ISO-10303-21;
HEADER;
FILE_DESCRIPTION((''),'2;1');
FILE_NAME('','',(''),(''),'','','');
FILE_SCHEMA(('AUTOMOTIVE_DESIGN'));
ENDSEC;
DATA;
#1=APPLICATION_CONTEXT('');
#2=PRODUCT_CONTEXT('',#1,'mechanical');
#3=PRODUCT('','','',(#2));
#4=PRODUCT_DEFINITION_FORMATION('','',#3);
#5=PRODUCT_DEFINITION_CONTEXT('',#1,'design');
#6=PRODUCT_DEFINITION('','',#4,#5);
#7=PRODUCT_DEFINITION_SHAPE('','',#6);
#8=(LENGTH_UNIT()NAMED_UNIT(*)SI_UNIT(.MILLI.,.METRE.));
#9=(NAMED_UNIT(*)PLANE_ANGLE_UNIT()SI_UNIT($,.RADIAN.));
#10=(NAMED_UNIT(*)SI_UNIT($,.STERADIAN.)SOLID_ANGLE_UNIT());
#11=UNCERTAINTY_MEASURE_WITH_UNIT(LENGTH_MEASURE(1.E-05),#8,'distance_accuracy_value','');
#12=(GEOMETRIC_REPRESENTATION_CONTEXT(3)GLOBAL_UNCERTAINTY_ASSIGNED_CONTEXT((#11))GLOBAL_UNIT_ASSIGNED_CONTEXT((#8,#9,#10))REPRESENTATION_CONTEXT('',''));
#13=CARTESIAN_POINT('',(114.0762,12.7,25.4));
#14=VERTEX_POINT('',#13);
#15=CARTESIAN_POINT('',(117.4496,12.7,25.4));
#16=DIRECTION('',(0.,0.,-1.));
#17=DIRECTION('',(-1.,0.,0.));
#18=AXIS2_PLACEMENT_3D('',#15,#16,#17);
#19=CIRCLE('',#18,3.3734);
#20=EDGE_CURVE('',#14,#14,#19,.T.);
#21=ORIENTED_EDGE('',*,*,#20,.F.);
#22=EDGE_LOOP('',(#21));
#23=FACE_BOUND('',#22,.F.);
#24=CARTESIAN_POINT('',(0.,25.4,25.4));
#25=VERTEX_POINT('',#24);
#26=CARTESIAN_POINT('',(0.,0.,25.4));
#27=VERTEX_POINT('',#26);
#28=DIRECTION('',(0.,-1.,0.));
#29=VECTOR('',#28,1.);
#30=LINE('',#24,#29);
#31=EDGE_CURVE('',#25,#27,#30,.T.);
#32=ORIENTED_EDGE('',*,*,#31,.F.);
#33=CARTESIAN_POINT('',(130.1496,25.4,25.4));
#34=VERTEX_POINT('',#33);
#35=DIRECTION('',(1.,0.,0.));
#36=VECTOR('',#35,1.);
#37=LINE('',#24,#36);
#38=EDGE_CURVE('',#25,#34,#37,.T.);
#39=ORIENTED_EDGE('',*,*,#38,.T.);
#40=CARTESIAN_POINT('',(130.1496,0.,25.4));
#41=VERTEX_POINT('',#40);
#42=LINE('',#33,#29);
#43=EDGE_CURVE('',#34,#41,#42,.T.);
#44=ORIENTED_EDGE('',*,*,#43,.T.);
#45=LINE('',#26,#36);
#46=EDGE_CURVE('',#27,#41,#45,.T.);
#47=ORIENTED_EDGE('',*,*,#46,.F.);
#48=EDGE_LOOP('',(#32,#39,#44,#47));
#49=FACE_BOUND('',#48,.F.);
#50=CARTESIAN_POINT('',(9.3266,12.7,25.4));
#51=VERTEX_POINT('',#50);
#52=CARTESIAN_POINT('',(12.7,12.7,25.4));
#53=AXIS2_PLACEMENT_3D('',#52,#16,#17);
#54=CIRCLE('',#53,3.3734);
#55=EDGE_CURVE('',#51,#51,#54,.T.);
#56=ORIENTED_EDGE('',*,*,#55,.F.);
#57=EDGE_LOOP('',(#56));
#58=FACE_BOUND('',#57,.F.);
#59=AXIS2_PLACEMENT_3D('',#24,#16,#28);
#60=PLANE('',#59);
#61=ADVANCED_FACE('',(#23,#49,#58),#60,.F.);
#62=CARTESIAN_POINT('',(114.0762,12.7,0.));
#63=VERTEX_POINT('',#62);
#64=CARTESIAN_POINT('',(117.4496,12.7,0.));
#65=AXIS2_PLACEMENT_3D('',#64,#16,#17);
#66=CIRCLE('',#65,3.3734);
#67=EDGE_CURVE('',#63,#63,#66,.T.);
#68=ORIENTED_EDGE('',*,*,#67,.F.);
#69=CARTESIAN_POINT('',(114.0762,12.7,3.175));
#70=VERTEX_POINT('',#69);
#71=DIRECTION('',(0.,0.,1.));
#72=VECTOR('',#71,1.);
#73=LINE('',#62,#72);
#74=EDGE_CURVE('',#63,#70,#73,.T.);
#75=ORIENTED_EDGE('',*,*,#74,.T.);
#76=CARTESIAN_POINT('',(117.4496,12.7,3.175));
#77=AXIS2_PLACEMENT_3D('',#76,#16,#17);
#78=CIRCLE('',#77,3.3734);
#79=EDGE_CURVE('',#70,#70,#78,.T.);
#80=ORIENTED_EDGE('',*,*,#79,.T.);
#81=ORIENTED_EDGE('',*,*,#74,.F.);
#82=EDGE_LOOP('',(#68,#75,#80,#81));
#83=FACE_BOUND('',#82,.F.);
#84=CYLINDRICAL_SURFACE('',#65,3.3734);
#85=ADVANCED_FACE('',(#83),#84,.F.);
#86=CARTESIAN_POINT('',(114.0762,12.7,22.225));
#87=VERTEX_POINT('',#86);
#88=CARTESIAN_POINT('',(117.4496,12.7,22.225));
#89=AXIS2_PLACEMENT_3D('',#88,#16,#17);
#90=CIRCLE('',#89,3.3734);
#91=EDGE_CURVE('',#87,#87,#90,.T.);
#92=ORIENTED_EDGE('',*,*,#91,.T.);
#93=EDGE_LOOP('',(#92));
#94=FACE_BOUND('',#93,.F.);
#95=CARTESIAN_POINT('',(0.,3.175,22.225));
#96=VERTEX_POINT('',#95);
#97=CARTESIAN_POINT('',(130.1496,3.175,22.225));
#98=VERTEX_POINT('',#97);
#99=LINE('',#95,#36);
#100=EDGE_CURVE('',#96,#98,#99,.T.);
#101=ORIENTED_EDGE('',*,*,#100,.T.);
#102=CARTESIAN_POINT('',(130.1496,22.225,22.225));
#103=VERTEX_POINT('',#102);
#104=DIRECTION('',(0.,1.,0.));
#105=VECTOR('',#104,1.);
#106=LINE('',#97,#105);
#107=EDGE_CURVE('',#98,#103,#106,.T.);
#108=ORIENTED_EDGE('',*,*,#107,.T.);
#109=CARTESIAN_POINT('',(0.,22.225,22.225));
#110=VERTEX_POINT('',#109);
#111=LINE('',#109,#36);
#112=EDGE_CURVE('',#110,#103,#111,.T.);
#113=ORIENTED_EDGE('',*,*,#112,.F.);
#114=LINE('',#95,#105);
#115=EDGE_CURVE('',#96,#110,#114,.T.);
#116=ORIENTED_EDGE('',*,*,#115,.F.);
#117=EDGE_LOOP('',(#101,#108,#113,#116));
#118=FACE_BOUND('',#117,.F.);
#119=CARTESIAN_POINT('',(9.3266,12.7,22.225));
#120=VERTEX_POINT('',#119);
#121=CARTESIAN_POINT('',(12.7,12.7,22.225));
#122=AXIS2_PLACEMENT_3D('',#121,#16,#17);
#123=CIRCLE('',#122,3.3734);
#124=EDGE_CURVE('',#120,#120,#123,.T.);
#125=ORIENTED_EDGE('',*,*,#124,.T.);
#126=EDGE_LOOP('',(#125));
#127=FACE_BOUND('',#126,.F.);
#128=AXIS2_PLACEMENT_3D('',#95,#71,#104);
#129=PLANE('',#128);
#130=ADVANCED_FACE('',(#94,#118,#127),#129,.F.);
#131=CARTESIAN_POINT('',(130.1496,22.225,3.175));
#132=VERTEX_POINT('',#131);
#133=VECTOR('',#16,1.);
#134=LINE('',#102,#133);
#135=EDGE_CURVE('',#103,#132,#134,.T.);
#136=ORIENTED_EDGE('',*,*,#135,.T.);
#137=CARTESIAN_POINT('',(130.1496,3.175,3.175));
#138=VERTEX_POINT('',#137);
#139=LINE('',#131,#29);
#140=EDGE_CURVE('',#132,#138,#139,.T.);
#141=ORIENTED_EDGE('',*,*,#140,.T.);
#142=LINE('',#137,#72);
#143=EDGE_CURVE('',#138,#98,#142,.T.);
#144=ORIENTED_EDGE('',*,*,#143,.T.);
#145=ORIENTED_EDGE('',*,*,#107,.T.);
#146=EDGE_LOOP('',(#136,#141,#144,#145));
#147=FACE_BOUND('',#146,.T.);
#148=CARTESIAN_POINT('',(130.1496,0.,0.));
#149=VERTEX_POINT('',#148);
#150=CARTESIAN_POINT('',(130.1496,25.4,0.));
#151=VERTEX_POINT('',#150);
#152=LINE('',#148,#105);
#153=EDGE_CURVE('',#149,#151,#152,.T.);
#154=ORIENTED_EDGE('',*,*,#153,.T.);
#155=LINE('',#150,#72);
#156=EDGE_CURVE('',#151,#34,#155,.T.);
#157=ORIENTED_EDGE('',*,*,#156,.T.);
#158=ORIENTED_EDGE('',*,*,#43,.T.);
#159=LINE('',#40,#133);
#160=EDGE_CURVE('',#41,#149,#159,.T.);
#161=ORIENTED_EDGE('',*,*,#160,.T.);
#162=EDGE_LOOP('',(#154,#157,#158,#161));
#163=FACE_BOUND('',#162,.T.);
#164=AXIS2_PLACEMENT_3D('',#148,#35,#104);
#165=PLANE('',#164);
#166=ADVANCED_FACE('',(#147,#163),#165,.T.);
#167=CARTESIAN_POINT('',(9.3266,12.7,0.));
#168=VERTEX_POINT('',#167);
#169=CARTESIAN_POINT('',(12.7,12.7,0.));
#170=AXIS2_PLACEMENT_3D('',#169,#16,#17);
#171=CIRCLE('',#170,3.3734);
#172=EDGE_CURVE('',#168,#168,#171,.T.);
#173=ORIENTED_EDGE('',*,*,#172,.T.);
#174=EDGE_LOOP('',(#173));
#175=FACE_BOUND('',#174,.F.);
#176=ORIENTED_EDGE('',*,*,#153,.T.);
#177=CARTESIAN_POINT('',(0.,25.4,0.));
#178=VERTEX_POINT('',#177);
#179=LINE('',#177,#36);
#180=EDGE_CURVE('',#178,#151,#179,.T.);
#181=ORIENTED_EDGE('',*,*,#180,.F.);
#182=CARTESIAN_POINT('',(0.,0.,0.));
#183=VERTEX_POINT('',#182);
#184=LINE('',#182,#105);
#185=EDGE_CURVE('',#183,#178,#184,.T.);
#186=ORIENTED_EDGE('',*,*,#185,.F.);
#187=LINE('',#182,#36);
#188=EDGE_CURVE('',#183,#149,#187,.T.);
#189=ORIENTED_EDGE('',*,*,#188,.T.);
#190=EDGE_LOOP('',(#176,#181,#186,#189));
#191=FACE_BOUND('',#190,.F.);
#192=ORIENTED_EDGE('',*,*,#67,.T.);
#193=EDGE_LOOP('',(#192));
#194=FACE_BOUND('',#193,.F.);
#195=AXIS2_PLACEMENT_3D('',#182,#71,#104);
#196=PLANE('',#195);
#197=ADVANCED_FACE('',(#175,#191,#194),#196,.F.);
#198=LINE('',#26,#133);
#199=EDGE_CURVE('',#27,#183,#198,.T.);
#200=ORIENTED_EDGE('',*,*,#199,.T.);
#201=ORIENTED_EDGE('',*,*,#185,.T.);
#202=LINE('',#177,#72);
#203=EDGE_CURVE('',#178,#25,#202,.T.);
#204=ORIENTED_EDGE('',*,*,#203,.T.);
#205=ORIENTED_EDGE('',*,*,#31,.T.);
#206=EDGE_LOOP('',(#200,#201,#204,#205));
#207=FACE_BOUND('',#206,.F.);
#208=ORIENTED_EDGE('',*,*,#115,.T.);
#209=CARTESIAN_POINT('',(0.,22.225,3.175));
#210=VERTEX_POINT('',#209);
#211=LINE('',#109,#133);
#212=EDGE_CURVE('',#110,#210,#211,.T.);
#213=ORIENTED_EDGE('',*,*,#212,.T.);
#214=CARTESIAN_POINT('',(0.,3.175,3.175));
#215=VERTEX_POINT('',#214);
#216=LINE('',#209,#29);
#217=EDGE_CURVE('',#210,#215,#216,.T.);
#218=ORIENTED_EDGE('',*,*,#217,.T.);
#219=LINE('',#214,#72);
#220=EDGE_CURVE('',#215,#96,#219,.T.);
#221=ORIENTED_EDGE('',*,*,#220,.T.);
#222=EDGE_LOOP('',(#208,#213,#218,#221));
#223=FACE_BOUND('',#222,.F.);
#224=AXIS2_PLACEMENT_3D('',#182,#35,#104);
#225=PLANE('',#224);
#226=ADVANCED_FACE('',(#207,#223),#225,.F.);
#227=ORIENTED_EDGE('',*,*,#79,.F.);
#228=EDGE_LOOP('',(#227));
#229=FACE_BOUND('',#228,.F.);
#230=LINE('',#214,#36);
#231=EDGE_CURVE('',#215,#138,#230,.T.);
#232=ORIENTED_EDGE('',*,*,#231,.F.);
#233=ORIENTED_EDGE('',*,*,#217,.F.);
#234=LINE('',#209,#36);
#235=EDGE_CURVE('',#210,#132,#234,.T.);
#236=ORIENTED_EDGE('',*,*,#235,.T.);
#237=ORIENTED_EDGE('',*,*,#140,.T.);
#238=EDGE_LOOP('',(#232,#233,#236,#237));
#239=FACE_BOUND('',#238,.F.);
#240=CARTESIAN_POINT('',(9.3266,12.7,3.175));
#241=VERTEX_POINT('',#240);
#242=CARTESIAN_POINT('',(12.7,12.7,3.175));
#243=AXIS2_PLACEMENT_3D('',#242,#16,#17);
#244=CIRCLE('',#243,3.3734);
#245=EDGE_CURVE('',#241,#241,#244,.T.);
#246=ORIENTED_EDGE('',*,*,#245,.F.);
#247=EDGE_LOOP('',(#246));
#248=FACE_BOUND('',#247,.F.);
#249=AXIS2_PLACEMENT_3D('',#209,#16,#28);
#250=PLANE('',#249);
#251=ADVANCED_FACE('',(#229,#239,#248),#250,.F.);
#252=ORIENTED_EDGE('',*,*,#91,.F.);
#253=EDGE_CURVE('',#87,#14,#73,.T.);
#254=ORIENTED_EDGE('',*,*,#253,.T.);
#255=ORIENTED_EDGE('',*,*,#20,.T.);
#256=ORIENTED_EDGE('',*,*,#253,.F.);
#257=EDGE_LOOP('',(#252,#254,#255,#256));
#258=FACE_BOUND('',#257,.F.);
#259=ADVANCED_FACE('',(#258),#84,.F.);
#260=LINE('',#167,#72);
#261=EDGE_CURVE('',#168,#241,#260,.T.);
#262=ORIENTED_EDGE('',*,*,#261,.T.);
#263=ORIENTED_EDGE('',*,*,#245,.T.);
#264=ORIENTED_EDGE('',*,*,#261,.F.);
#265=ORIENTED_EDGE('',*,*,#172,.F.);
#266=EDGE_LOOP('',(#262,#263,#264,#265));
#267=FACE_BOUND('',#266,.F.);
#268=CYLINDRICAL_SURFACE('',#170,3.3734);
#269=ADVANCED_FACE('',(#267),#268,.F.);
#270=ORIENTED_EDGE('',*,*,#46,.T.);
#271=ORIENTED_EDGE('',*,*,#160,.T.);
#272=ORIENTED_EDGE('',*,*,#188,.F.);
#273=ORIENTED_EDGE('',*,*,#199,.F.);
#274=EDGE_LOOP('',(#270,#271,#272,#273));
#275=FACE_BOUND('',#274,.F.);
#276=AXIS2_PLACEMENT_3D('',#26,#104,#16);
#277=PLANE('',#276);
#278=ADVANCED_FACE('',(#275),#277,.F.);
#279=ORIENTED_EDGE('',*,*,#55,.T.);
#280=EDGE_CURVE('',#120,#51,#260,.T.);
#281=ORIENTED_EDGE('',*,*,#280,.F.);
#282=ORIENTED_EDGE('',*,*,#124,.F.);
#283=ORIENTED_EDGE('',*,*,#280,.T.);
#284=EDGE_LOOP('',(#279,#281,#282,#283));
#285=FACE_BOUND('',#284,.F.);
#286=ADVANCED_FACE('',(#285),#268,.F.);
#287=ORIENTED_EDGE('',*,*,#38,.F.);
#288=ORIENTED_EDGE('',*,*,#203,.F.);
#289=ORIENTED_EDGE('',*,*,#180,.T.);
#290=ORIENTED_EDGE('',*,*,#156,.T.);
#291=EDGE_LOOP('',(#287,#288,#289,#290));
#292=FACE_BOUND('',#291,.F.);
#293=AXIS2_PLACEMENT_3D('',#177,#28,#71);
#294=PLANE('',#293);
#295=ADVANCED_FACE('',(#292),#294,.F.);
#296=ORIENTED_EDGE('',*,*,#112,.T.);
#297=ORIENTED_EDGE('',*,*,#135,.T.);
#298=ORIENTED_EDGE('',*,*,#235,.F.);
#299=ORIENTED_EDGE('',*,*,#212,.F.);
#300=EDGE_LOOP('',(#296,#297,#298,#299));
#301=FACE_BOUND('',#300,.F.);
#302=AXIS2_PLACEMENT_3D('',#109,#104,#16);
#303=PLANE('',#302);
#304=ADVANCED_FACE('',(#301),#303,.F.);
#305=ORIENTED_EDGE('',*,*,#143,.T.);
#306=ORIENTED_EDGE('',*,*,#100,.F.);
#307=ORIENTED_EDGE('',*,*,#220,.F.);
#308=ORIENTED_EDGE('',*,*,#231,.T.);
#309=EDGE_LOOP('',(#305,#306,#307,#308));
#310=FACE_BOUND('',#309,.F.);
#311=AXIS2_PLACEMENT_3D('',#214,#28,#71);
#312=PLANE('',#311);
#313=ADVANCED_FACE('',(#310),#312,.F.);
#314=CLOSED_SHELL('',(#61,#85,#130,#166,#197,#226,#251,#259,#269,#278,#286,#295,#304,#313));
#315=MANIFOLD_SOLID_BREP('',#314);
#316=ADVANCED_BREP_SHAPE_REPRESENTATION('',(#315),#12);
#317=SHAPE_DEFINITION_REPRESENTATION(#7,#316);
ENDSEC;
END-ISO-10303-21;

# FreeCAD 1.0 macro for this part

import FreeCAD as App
import Part
import Sketcher
Q = App.Units.Quantity

doc = App.newDocument("Part")
body = doc.addObject("PartDesign::Body", "Body")

# Sketch on YZ plane
sketch1 = body.newObject("Sketcher::SketchObject", "Sketch")
sketch1.AttachmentSupport = (doc.getObject("YZ_Plane"), [""])
sketch1.MapMode = "FlatFace"
sketch1.addGeometry(Part.LineSegment(App.Vector(0, 25.4, 0), App.Vector(0, 0, 0)), False)
sketch1.addGeometry(Part.LineSegment(App.Vector(0, 0, 0), App.Vector(25.4, 0, 0)), False)
sketch1.addGeometry(Part.LineSegment(App.Vector(25.4, 0, 0), App.Vector(25.4, 25.4, 0)), False)
sketch1.addGeometry(Part.LineSegment(App.Vector(25.4, 25.4, 0), App.Vector(0, 25.4, 0)), False)
sketch1.addGeometry(Part.LineSegment(App.Vector(3.175, 3.175, 0), App.Vector(3.175, 22.225, 0)), False)
sketch1.addGeometry(Part.LineSegment(App.Vector(3.175, 22.225, 0), App.Vector(22.225, 22.225, 0)), False)
sketch1.addGeometry(Part.LineSegment(App.Vector(22.225, 22.225, 0), App.Vector(22.225, 3.175, 0)), False)
sketch1.addGeometry(Part.LineSegment(App.Vector(22.225, 3.175, 0), App.Vector(3.175, 3.175, 0)), False)
sketch1.addConstraint(Sketcher.Constraint("Coincident", 0, 2, 1, 1))
sketch1.addConstraint(Sketcher.Constraint("Coincident", 1, 2, 2, 1))
sketch1.addConstraint(Sketcher.Constraint("Coincident", 2, 2, 3, 1))
sketch1.addConstraint(Sketcher.Constraint("Coincident", 3, 2, 0, 1))
sketch1.addConstraint(Sketcher.Constraint("Coincident", 4, 2, 5, 1))
sketch1.addConstraint(Sketcher.Constraint("Coincident", 5, 2, 6, 1))
sketch1.addConstraint(Sketcher.Constraint("Coincident", 6, 2, 7, 1))
sketch1.addConstraint(Sketcher.Constraint("Coincident", 7, 2, 4, 1))
sketch1.addConstraint(Sketcher.Constraint("Vertical", 0))
sketch1.addConstraint(Sketcher.Constraint("Horizontal", 1))
sketch1.addConstraint(Sketcher.Constraint("Vertical", 2))
sketch1.addConstraint(Sketcher.Constraint("Horizontal", 3))
sketch1.addConstraint(Sketcher.Constraint("Vertical", 4))
sketch1.addConstraint(Sketcher.Constraint("Horizontal", 5))
sketch1.addConstraint(Sketcher.Constraint("Vertical", 6))
sketch1.addConstraint(Sketcher.Constraint("Horizontal", 7))
sketch1.addConstraint(Sketcher.Constraint("Coincident", 0, 2, -1, 1))
sketch1.addConstraint(Sketcher.Constraint("Equal", 3, 0))
sketch1.addConstraint(Sketcher.Constraint("Equal", 7, 4))
sketch1.addConstraint(Sketcher.Constraint("DistanceX", 1, 1, 1, 2, Q("1 in")))
sketch1.addConstraint(Sketcher.Constraint("DistanceX", -1, 1, 4, 2, Q("0.125 in")))
sketch1.addConstraint(Sketcher.Constraint("DistanceY", -1, 1, 6, 2, Q("0.125 in")))
sketch1.addConstraint(Sketcher.Constraint("DistanceY", 4, 2, 3, 2, Q("0.125 in")))
pad1 = body.newObject("PartDesign::Pad", "Pad")
pad1.Profile = sketch1
pad1.Length = Q("5.124 in")

# Sketch on XY plane
sketch2 = body.newObject("Sketcher::SketchObject", "Sketch001")
sketch2.AttachmentSupport = (doc.getObject("XY_Plane"), [""])
sketch2.MapMode = "FlatFace"
sketch2.addGeometry(Part.Circle(App.Vector(12.7, 12.7, 0), App.Vector(0, 0, 1), 3.3734), False)
sketch2.addGeometry(Part.Circle(App.Vector(117.4496, 12.7, 0), App.Vector(0, 0, 1), 3.3734), False)
sketch2.addConstraint(Sketcher.Constraint("Equal", 0, 1))
sketch2.addConstraint(Sketcher.Constraint("Horizontal", 0, 3, 1, 3))
sketch2.addConstraint(Sketcher.Constraint("Diameter", 0, Q("0.265622 in")))
sketch2.addConstraint(Sketcher.Constraint("DistanceX", -1, 1, 0, 3, Q("0.5 in")))
sketch2.addConstraint(Sketcher.Constraint("DistanceY", -1, 1, 0, 3, Q("0.5 in")))
sketch2.addConstraint(Sketcher.Constraint("DistanceX", -1, 1, 1, 3, Q("4.624 in")))
pocket1 = body.newObject("PartDesign::Pocket", "Pocket")
pocket1.Profile = sketch2
pocket1.Length = Q("1 in")
pocket1.Reversed = True

doc.recompute()
